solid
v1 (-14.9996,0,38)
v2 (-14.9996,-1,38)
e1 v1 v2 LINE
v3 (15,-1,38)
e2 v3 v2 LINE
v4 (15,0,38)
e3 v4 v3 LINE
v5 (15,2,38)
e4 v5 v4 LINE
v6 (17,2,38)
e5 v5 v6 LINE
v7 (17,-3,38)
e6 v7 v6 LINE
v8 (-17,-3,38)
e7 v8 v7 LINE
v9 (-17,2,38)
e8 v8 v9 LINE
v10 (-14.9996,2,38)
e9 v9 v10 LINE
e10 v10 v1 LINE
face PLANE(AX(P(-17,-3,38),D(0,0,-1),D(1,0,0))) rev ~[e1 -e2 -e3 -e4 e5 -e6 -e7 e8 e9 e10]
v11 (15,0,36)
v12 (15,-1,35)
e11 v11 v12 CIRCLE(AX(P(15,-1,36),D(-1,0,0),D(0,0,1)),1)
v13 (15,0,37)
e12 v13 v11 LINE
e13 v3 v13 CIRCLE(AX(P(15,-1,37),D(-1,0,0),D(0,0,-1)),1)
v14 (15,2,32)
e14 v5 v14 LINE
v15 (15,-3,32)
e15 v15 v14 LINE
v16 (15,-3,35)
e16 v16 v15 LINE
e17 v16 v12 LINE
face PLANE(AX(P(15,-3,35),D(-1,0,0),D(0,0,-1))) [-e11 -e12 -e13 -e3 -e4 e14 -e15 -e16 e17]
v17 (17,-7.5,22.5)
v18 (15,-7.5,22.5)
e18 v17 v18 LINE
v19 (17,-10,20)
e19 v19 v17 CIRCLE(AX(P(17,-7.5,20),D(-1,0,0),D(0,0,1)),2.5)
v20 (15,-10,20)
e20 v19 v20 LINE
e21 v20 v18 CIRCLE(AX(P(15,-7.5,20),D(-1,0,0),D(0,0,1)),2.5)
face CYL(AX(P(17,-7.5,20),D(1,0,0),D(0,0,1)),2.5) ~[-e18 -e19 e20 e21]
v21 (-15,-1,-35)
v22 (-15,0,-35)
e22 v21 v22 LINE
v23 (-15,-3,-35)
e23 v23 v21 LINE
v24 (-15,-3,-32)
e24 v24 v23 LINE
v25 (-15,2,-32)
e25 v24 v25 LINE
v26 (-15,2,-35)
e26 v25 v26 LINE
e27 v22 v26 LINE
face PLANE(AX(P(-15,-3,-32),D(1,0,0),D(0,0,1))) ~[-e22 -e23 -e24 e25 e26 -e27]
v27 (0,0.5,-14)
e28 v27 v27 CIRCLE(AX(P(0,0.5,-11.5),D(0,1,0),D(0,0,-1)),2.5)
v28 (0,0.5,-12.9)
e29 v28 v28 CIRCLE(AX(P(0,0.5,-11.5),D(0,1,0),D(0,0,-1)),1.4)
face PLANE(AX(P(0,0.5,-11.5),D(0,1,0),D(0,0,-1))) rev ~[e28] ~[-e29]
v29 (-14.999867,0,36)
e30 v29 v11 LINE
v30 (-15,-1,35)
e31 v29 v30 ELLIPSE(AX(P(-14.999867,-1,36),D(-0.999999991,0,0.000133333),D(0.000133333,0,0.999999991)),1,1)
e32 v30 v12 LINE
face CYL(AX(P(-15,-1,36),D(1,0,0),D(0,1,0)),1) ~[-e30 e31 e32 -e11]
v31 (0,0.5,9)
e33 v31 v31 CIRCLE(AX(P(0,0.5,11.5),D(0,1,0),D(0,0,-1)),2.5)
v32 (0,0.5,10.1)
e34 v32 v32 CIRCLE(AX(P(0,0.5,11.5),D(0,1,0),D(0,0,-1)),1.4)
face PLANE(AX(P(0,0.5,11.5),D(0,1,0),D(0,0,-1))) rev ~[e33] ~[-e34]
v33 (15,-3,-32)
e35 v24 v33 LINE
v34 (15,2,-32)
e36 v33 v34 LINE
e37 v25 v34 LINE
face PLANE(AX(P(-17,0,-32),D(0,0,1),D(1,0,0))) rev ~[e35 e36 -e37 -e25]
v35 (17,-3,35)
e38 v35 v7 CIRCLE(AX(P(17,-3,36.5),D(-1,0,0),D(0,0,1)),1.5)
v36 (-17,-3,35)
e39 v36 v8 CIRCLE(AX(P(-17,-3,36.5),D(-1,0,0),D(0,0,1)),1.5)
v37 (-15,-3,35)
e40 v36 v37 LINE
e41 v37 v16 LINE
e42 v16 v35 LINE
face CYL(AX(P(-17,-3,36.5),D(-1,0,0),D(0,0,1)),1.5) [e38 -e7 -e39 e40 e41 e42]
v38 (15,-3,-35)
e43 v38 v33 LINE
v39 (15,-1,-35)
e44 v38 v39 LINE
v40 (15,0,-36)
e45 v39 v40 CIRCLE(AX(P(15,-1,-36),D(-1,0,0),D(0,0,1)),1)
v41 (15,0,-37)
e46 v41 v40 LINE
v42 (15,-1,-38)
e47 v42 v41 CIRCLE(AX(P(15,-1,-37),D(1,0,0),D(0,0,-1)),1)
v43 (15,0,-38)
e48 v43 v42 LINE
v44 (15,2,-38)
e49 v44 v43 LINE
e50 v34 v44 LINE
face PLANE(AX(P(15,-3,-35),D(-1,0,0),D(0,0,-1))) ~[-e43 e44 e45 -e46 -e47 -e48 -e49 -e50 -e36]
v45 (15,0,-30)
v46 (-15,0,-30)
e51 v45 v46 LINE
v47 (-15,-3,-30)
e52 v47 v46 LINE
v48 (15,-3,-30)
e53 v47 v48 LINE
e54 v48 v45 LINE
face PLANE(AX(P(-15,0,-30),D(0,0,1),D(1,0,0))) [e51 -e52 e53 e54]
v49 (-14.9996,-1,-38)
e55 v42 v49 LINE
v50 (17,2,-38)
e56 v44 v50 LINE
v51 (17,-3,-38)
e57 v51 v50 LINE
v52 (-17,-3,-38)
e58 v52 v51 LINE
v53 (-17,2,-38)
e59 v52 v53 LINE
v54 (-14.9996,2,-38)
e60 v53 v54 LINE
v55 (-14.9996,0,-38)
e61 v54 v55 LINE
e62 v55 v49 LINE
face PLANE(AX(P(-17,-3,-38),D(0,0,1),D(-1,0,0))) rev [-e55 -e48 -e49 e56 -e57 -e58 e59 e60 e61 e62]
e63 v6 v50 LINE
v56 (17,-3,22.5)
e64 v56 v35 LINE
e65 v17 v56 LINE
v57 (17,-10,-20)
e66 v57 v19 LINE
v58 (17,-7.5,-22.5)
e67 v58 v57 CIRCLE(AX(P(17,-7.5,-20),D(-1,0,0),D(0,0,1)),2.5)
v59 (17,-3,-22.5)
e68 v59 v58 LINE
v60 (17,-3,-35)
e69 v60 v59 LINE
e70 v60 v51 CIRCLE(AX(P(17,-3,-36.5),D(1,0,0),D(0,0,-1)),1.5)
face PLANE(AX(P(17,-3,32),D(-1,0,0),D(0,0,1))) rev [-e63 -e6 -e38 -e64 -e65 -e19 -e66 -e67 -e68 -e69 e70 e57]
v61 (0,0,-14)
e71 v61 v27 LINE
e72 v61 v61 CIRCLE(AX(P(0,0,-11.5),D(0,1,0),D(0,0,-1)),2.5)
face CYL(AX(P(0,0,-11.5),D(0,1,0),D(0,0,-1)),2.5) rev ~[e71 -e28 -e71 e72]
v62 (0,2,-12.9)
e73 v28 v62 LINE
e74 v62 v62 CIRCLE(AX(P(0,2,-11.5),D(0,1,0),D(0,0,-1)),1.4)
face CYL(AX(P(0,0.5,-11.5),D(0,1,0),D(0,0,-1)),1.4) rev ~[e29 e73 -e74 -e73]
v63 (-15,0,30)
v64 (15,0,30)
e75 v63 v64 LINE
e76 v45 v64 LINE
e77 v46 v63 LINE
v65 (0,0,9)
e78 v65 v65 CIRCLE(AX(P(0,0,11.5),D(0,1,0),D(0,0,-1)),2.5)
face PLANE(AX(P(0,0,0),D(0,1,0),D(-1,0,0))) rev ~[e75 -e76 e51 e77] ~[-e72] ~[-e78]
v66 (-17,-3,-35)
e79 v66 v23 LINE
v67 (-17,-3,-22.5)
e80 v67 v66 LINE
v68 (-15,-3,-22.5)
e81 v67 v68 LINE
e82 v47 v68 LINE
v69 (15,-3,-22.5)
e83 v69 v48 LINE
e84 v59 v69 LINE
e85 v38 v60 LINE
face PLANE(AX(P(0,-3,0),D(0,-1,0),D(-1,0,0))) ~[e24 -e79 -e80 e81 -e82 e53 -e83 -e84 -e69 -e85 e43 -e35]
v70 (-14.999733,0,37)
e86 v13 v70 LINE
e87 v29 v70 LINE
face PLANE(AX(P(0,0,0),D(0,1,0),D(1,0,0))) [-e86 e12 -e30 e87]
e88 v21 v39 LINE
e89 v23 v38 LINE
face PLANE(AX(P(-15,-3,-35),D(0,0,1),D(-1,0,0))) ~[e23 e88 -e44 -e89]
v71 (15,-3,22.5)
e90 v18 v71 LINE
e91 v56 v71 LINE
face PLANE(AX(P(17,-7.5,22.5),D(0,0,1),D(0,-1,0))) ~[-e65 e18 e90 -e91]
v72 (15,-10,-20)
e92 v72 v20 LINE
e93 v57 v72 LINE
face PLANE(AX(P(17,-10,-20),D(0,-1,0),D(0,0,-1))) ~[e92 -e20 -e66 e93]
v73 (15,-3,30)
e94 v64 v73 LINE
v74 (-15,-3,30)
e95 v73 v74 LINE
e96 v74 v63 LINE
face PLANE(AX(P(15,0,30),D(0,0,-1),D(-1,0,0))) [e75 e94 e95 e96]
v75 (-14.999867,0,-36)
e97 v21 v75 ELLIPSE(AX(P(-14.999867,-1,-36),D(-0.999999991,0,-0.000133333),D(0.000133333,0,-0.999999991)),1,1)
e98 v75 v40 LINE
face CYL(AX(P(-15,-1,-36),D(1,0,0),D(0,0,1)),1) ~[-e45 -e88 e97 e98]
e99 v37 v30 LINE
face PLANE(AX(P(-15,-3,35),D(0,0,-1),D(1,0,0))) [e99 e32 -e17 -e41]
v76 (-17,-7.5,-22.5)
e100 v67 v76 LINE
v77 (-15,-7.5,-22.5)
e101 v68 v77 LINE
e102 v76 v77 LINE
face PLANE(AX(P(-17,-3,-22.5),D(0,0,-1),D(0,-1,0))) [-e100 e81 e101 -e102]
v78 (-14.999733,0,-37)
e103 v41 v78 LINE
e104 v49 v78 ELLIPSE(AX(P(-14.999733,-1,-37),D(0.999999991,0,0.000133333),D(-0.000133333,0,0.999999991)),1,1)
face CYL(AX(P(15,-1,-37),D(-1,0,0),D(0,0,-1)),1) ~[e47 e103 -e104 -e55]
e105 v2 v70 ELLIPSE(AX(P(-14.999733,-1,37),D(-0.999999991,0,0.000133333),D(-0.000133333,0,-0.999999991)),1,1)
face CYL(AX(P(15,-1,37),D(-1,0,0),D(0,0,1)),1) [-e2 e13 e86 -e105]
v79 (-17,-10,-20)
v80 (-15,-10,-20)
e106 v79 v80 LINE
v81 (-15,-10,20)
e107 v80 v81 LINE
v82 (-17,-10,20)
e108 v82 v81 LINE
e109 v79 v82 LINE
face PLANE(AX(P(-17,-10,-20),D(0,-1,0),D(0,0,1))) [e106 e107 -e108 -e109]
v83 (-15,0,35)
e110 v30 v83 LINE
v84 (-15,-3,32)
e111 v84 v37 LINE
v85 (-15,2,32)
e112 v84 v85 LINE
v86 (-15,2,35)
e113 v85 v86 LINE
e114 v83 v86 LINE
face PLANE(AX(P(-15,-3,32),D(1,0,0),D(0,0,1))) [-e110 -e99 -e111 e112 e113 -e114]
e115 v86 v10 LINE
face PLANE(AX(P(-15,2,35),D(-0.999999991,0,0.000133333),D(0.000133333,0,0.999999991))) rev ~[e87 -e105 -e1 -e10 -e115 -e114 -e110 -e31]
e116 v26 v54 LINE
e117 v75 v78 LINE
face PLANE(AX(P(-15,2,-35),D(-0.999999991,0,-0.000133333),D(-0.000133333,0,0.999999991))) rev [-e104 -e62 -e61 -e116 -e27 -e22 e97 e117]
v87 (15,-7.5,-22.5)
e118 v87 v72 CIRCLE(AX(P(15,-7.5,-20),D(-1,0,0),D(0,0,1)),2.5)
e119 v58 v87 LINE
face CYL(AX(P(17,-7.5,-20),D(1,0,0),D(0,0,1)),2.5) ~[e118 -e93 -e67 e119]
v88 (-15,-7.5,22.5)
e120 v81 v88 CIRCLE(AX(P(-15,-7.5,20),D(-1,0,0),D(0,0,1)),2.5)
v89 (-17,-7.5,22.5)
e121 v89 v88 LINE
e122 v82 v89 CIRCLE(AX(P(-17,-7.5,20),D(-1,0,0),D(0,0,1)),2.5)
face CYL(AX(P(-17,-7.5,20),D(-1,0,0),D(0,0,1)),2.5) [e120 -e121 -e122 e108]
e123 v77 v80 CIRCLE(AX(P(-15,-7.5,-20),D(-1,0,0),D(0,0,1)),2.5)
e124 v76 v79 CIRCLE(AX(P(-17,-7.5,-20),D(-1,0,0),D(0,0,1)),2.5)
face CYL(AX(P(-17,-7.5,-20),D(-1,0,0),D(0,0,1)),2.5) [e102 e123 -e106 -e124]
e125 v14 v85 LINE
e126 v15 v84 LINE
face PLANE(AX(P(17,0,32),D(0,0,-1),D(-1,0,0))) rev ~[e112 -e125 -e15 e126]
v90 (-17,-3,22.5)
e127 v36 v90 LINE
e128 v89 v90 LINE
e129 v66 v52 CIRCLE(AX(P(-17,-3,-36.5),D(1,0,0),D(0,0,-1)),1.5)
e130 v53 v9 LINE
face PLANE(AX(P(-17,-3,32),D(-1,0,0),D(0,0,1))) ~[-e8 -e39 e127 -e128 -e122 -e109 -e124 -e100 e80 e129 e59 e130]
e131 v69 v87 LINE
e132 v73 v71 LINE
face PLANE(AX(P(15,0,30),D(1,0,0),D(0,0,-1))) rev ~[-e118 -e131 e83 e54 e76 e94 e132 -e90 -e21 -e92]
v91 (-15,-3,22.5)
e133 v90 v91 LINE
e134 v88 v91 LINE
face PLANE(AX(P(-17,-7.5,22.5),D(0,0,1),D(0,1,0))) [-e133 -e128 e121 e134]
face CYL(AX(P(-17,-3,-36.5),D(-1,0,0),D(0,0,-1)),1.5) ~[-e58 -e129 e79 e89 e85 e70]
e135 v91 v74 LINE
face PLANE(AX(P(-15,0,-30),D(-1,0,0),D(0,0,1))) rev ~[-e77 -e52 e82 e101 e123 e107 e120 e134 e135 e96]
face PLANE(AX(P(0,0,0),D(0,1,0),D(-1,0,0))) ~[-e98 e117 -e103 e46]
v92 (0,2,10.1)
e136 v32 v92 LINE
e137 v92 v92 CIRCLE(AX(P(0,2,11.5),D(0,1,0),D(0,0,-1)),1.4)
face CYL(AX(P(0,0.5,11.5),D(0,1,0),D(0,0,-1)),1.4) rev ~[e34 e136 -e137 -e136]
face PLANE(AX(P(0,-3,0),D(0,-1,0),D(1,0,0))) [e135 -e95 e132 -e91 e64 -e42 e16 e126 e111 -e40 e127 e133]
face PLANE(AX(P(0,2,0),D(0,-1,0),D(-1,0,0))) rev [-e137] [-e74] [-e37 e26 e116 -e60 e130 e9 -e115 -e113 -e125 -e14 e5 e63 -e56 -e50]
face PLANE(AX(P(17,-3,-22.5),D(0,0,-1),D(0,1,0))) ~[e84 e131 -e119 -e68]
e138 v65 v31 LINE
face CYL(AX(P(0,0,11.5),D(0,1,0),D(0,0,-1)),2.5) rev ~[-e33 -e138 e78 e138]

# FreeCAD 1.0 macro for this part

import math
import FreeCAD as App
import Part
import Sketcher

V = App.Vector


def edges_at(feature, points):
    """Names of the edges that pass closest to the given points."""
    edges = feature.Shape.Edges
    near = lambda p: min(range(len(edges)), key=lambda i: edges[i].distToShape(Part.Vertex(*p))[0])
    return sorted({f"Edge{near(p) + 1}" for p in points})

doc = App.newDocument("Part")
params = doc.addObject("Spreadsheet::Sheet", "Params")
for row, (alias, value) in enumerate([
    ("sketch1_width", "30 mm"),
    ("sketch1_height", "60 mm"),
    ("pad1_length", "2 mm"),
    ("sketch2_diameter", "2.8 mm"),
    ("hole_diameter", "2.8 mm"),
    ("hole_cbore_diameter", "5 mm"),
    ("hole_cbore_depth", "0.5 mm"),
    ("sketch3_width", "34 mm"),
    ("sketch3_height", "64 mm"),
    ("sketch3_height2", "60 mm"),
    ("pad2_length", "3 mm"),
    ("pad2_length2", "2 mm"),
    ("sketch4_radius", "2.5 mm"),
    ("sketch4_height", "45 mm"),
    ("sketch4_width", "4.5 mm"),
    ("pad3_length", "2 mm"),
    ("sketch5_height", "3 mm"),
    ("sketch5_height2", "6 mm"),
    ("sketch5_width", "2 mm"),
    ("sketch5_width2", "34 mm"),
    ("pad4_length", "5 mm"),
    ("sketch6_width", "30 mm"),
    ("sketch6_height", "3 mm"),
    ("pocket1_length", "2 mm"),
    ("sketch7_radius", "1.5 mm"),
    ("pad5_length", "34 mm"),
    ("fillet_radius", "1 mm"),
], start=1):
    params.set(f"A{row}", alias)
    params.set(f"B{row}", "=" + value)
    params.setAlias(f"B{row}", alias)

body = doc.addObject("PartDesign::Body", "Body")

sketch1 = body.newObject("Sketcher::SketchObject", "Sketch")
sketch1.AttachmentSupport = (doc.getObject("XZ_Plane"), [""])
sketch1.MapMode = "FlatFace"
sketch1.addGeometry([
    Part.LineSegment(V(-15, -30, 0), V(-15, 30, 0)),
    Part.LineSegment(V(-15, 30, 0), V(15, 30, 0)),
    Part.LineSegment(V(15, 30, 0), V(15, -30, 0)),
    Part.LineSegment(V(15, -30, 0), V(-15, -30, 0)),
], False)
sketch1.addConstraint([
    Sketcher.Constraint("Coincident", 0, 2, 1, 1),
    Sketcher.Constraint("Coincident", 1, 2, 2, 1),
    Sketcher.Constraint("Coincident", 2, 2, 3, 1),
    Sketcher.Constraint("Coincident", 3, 2, 0, 1),
    Sketcher.Constraint("Vertical", 0),
    Sketcher.Constraint("Horizontal", 1),
    Sketcher.Constraint("Vertical", 2),
    Sketcher.Constraint("Horizontal", 3),
    Sketcher.Constraint("Symmetric", 0, 2, 2, 2, -1, 1),
    Sketcher.Constraint("DistanceX", 1, 1, 1, 2, 30.0),
    Sketcher.Constraint("DistanceY", 0, 1, 0, 2, 60.0),
])
sketch1.setExpression("Constraints[9]", "Params.sketch1_width")
sketch1.setExpression("Constraints[10]", "Params.sketch1_height")
pad1 = body.newObject("PartDesign::Pad", "Pad")
pad1.Profile = sketch1
pad1.setExpression("Length", "Params.pad1_length")
pad1.Reversed = True

sketch2 = body.newObject("Sketcher::SketchObject", "Sketch001")
sketch2.AttachmentSupport = (doc.getObject("XZ_Plane"), [""])
sketch2.MapMode = "FlatFace"
sketch2.addGeometry([
    Part.Circle(V(0, -11.5, 0), V(0, 0, 1), 1.4),
    Part.Circle(V(0, 11.5, 0), V(0, 0, 1), 1.4),
], False)
sketch2.addConstraint([
    Sketcher.Constraint("Equal", 0, 1),
    Sketcher.Constraint("Symmetric", 0, 3, 1, 3, -1, 1),
    Sketcher.Constraint("PointOnObject", 0, 3, -2),
    Sketcher.Constraint("Diameter", 0, 2.8),
    Sketcher.Constraint("DistanceY", 0, 3, 1, 3, 23.0),
])
sketch2.setExpression("Constraints[3]", "Params.sketch2_diameter")
doc.recompute()
hole = body.newObject("PartDesign::Hole", "Hole")
hole.Profile = sketch2
hole.ThreadType = "None"
hole.setExpression("Diameter", "Params.hole_diameter")
hole.DepthType = "ThroughAll"
hole.HoleCutType = "Counterbore"
hole.setExpression("HoleCutDiameter", "Params.hole_cbore_diameter")
hole.setExpression("HoleCutDepth", "Params.hole_cbore_depth")

sketch3 = body.newObject("Sketcher::SketchObject", "Sketch002")
sketch3.AttachmentSupport = (doc.getObject("XZ_Plane"), [""])
sketch3.MapMode = "FlatFace"
sketch3.addGeometry([
    Part.LineSegment(V(17, -32, 0), V(17, 32, 0)),
    Part.LineSegment(V(17, 32, 0), V(-17, 32, 0)),
    Part.LineSegment(V(-17, 32, 0), V(-17, -32, 0)),
    Part.LineSegment(V(-17, -32, 0), V(17, -32, 0)),
    Part.LineSegment(V(-15, 30, 0), V(15, 30, 0)),
    Part.LineSegment(V(15, 30, 0), V(15, -30, 0)),
    Part.LineSegment(V(15, -30, 0), V(-15, -30, 0)),
    Part.LineSegment(V(-15, -30, 0), V(-15, 30, 0)),
], False)
sketch3.addConstraint([
    Sketcher.Constraint("Coincident", 0, 2, 1, 1),
    Sketcher.Constraint("Coincident", 1, 2, 2, 1),
    Sketcher.Constraint("Coincident", 2, 2, 3, 1),
    Sketcher.Constraint("Coincident", 3, 2, 0, 1),
    Sketcher.Constraint("Coincident", 4, 2, 5, 1),
    Sketcher.Constraint("Coincident", 5, 2, 6, 1),
    Sketcher.Constraint("Coincident", 6, 2, 7, 1),
    Sketcher.Constraint("Coincident", 7, 2, 4, 1),
    Sketcher.Constraint("Vertical", 0),
    Sketcher.Constraint("Horizontal", 1),
    Sketcher.Constraint("Vertical", 2),
    Sketcher.Constraint("Horizontal", 3),
    Sketcher.Constraint("Horizontal", 4),
    Sketcher.Constraint("Vertical", 5),
    Sketcher.Constraint("Horizontal", 6),
    Sketcher.Constraint("Vertical", 7),
    Sketcher.Constraint("Symmetric", 0, 2, 2, 2, -1, 1),
    Sketcher.Constraint("Symmetric", 4, 2, 6, 2, -1, 1),
    Sketcher.Constraint("DistanceX", 1, 2, 1, 1, 34.0),
    Sketcher.Constraint("DistanceY", 0, 1, 0, 2, 64.0),
    Sketcher.Constraint("DistanceX", 1, 2, 4, 2, 32.0),
    Sketcher.Constraint("DistanceY", 5, 2, 5, 1, 60.0),
])
sketch3.setExpression("Constraints[18]", "Params.sketch3_width")
sketch3.setExpression("Constraints[19]", "Params.sketch3_height")
sketch3.setExpression("Constraints[21]", "Params.sketch3_height2")
pad2 = body.newObject("PartDesign::Pad", "Pad001")
pad2.Profile = sketch3
pad2.Type = "TwoLengths"
pad2.setExpression("Length", "Params.pad2_length")
pad2.setExpression("Length2", "Params.pad2_length2")

sketch4 = body.newObject("Sketcher::SketchObject", "Sketch003")
sketch4.AttachmentSupport = (doc.getObject("YZ_Plane"), [""])
sketch4.MapMode = "FlatFace"
sketch4.AttachmentOffset = App.Placement(V(0, 0, -17), App.Rotation())
sketch4.addGeometry([
    Part.LineSegment(V(-3, 22.5, 0), V(-3, -22.5, 0)),
    Part.LineSegment(V(-3, -22.5, 0), V(-7.5, -22.5, 0)),
    Part.ArcOfCircle(Part.Circle(V(-7.5, -20, 0), V(0, 0, 1), 2.5), math.radians(180), math.radians(270)),
    Part.LineSegment(V(-10, -20, 0), V(-10, 20, 0)),
    Part.ArcOfCircle(Part.Circle(V(-7.5, 20, 0), V(0, 0, 1), 2.5), math.radians(90), math.radians(180)),
    Part.LineSegment(V(-7.5, 22.5, 0), V(-3, 22.5, 0)),
], False)
sketch4.addConstraint([
    Sketcher.Constraint("Coincident", 0, 2, 1, 1),
    Sketcher.Constraint("Tangent", 1, 2, 2, 2),
    Sketcher.Constraint("Tangent", 2, 1, 3, 1),
    Sketcher.Constraint("Tangent", 3, 2, 4, 2),
    Sketcher.Constraint("Tangent", 4, 1, 5, 1),
    Sketcher.Constraint("Coincident", 5, 2, 0, 1),
    Sketcher.Constraint("Vertical", 0),
    Sketcher.Constraint("Horizontal", 1),
    Sketcher.Constraint("Vertical", 3),
    Sketcher.Constraint("Horizontal", 5),
    Sketcher.Constraint("Equal", 2, 4),
    Sketcher.Constraint("Radius", 2, 2.5),
    Sketcher.Constraint("DistanceY", 0, 2, 0, 1, 45.0),
    Sketcher.Constraint("DistanceX", 2, 1, -1, 1, 10.0),
    Sketcher.Constraint("DistanceX", 1, 2, 1, 1, 4.5),
    Sketcher.Constraint("DistanceY", 2, 3, -1, 1, 20.0),
])
sketch4.setExpression("Constraints[11]", "Params.sketch4_radius")
sketch4.setExpression("Constraints[12]", "Params.sketch4_height")
sketch4.setExpression("Constraints[14]", "Params.sketch4_width")
pad3 = body.newObject("PartDesign::Pad", "Pad002")
pad3.Profile = sketch4
pad3.setExpression("Length", "Params.pad3_length")
doc.recompute()

mirrored = body.newObject("PartDesign::Mirrored", "Mirrored")
mirrored.Originals = [pad3]
mirrored.MirrorPlane = (doc.getObject("YZ_Plane"), [""])
body.Tip = mirrored

sketch5 = body.newObject("Sketcher::SketchObject", "Sketch004")
sketch5.AttachmentSupport = (doc.getObject("XZ_Plane"), [""])
sketch5.MapMode = "FlatFace"
sketch5.AttachmentOffset = App.Placement(V(0, 0, 3), App.Rotation())
sketch5.addGeometry([
    Part.LineSegment(V(15, 35, 0), V(15, 32, 0)),
    Part.LineSegment(V(15, 32, 0), V(17, 32, 0)),
    Part.LineSegment(V(17, 32, 0), V(17, 38, 0)),
    Part.LineSegment(V(17, 38, 0), V(-17, 38, 0)),
    Part.LineSegment(V(-17, 38, 0), V(-17, 32, 0)),
    Part.LineSegment(V(-17, 32, 0), V(-15, 32, 0)),
    Part.LineSegment(V(-15, 32, 0), V(-15, 35, 0)),
    Part.LineSegment(V(-15, 35, 0), V(15, 35, 0)),
], False)
sketch5.addConstraint([
    Sketcher.Constraint("Coincident", 0, 2, 1, 1),
    Sketcher.Constraint("Coincident", 1, 2, 2, 1),
    Sketcher.Constraint("Coincident", 2, 2, 3, 1),
    Sketcher.Constraint("Coincident", 3, 2, 4, 1),
    Sketcher.Constraint("Coincident", 4, 2, 5, 1),
    Sketcher.Constraint("Coincident", 5, 2, 6, 1),
    Sketcher.Constraint("Coincident", 6, 2, 7, 1),
    Sketcher.Constraint("Coincident", 7, 2, 0, 1),
    Sketcher.Constraint("Vertical", 0),
    Sketcher.Constraint("Horizontal", 1),
    Sketcher.Constraint("Vertical", 2),
    Sketcher.Constraint("Horizontal", 3),
    Sketcher.Constraint("Vertical", 4),
    Sketcher.Constraint("Horizontal", 5),
    Sketcher.Constraint("Vertical", 6),
    Sketcher.Constraint("Horizontal", 7),
    Sketcher.Constraint("Symmetric", 1, 2, 4, 2, -2),
    Sketcher.Constraint("Equal", 1, 5),
    Sketcher.Constraint("DistanceY", 0, 2, 0, 1, 3.0),
    Sketcher.Constraint("DistanceY", 2, 1, 2, 2, 6.0),
    Sketcher.Constraint("DistanceX", 1, 1, 1, 2, 2.0),
    Sketcher.Constraint("DistanceX", 3, 2, 3, 1, 34.0),
    Sketcher.Constraint("DistanceY", -1, 1, 0, 2, 32.0),
])
sketch5.setExpression("Constraints[18]", "Params.sketch5_height")
sketch5.setExpression("Constraints[19]", "Params.sketch5_height2")
sketch5.setExpression("Constraints[20]", "Params.sketch5_width")
sketch5.setExpression("Constraints[21]", "Params.sketch5_width2")
pad4 = body.newObject("PartDesign::Pad", "Pad003")
pad4.Profile = sketch5
pad4.setExpression("Length", "Params.pad4_length")
pad4.Reversed = True

sketch6 = body.newObject("Sketcher::SketchObject", "Sketch005")
sketch6.AttachmentSupport = (doc.getObject("XZ_Plane"), [""])
sketch6.MapMode = "FlatFace"
sketch6.AttachmentOffset = App.Placement(V(0, 0, -2), App.Rotation())
sketch6.addGeometry([
    Part.LineSegment(V(15, 35, 0), V(-15, 35, 0)),
    Part.LineSegment(V(-15, 35, 0), V(-14.9996, 38, 0)),
    Part.LineSegment(V(-14.9996, 38, 0), V(15, 38, 0)),
    Part.LineSegment(V(15, 38, 0), V(15, 35, 0)),
], False)
sketch6.addConstraint([
    Sketcher.Constraint("Coincident", 0, 2, 1, 1),
    Sketcher.Constraint("Coincident", 1, 2, 2, 1),
    Sketcher.Constraint("Coincident", 2, 2, 3, 1),
    Sketcher.Constraint("Coincident", 3, 2, 0, 1),
    Sketcher.Constraint("Horizontal", 0),
    Sketcher.Constraint("Horizontal", 2),
    Sketcher.Constraint("Vertical", 3),
    Sketcher.Constraint("DistanceX", 0, 2, 0, 1, 30.0),
    Sketcher.Constraint("DistanceY", 3, 2, 3, 1, 3.0),
    Sketcher.Constraint("DistanceX", 0, 2, -1, 1, 15.0),
    Sketcher.Constraint("DistanceY", -1, 1, 0, 2, 35.0),
    Sketcher.Constraint("DistanceX", 2, 1, 2, 2, 29.9996),
])
sketch6.setExpression("Constraints[7]", "Params.sketch6_width")
sketch6.setExpression("Constraints[8]", "Params.sketch6_height")
pocket1 = body.newObject("PartDesign::Pocket", "Pocket")
pocket1.Profile = sketch6
pocket1.setExpression("Length", "Params.pocket1_length")
pocket1.Reversed = True

sketch7 = body.newObject("Sketcher::SketchObject", "Sketch006")
sketch7.AttachmentSupport = (doc.getObject("YZ_Plane"), [""])
sketch7.MapMode = "FlatFace"
sketch7.AttachmentOffset = App.Placement(V(0, 0, -17), App.Rotation())
sketch7.addGeometry([
    Part.ArcOfCircle(Part.Circle(V(-3, 36.5, 0), V(0, 0, 1), 1.5), math.radians(90), math.radians(270)),
    Part.LineSegment(V(-3, 38, 0), V(-3, 35, 0)),
], False)
sketch7.addConstraint([
    Sketcher.Constraint("Coincident", 0, 1, 1, 1),
    Sketcher.Constraint("Coincident", 1, 2, 0, 2),
    Sketcher.Constraint("Vertical", 1),
    Sketcher.Constraint("Radius", 0, 1.5),
    Sketcher.Constraint("DistanceX", 0, 3, -1, 1, 3.0),
    Sketcher.Constraint("DistanceX", 0, 1, -1, 1, 3.0),
    Sketcher.Constraint("DistanceY", -1, 1, 0, 1, 38.0),
])
sketch7.setExpression("Constraints[3]", "Params.sketch7_radius")
pad5 = body.newObject("PartDesign::Pad", "Pad004")
pad5.Profile = sketch7
pad5.setExpression("Length", "Params.pad5_length")
doc.recompute()

mirrored2 = body.newObject("PartDesign::Mirrored", "Mirrored001")
mirrored2.Originals = [pad4, pocket1, pad5]
mirrored2.MirrorPlane = (doc.getObject("XY_Plane"), [""])
body.Tip = mirrored2
doc.recompute()

fillet = body.newObject("PartDesign::Fillet", "Fillet")
fillet.Base = (mirrored2, edges_at(mirrored2, [
    (0, 0, -38),
    (0, 0, -35),
    (0, 0, 38),
    (0, 0, 35),
]))
fillet.setExpression("Radius", "Params.fillet_radius")

doc.recompute()
